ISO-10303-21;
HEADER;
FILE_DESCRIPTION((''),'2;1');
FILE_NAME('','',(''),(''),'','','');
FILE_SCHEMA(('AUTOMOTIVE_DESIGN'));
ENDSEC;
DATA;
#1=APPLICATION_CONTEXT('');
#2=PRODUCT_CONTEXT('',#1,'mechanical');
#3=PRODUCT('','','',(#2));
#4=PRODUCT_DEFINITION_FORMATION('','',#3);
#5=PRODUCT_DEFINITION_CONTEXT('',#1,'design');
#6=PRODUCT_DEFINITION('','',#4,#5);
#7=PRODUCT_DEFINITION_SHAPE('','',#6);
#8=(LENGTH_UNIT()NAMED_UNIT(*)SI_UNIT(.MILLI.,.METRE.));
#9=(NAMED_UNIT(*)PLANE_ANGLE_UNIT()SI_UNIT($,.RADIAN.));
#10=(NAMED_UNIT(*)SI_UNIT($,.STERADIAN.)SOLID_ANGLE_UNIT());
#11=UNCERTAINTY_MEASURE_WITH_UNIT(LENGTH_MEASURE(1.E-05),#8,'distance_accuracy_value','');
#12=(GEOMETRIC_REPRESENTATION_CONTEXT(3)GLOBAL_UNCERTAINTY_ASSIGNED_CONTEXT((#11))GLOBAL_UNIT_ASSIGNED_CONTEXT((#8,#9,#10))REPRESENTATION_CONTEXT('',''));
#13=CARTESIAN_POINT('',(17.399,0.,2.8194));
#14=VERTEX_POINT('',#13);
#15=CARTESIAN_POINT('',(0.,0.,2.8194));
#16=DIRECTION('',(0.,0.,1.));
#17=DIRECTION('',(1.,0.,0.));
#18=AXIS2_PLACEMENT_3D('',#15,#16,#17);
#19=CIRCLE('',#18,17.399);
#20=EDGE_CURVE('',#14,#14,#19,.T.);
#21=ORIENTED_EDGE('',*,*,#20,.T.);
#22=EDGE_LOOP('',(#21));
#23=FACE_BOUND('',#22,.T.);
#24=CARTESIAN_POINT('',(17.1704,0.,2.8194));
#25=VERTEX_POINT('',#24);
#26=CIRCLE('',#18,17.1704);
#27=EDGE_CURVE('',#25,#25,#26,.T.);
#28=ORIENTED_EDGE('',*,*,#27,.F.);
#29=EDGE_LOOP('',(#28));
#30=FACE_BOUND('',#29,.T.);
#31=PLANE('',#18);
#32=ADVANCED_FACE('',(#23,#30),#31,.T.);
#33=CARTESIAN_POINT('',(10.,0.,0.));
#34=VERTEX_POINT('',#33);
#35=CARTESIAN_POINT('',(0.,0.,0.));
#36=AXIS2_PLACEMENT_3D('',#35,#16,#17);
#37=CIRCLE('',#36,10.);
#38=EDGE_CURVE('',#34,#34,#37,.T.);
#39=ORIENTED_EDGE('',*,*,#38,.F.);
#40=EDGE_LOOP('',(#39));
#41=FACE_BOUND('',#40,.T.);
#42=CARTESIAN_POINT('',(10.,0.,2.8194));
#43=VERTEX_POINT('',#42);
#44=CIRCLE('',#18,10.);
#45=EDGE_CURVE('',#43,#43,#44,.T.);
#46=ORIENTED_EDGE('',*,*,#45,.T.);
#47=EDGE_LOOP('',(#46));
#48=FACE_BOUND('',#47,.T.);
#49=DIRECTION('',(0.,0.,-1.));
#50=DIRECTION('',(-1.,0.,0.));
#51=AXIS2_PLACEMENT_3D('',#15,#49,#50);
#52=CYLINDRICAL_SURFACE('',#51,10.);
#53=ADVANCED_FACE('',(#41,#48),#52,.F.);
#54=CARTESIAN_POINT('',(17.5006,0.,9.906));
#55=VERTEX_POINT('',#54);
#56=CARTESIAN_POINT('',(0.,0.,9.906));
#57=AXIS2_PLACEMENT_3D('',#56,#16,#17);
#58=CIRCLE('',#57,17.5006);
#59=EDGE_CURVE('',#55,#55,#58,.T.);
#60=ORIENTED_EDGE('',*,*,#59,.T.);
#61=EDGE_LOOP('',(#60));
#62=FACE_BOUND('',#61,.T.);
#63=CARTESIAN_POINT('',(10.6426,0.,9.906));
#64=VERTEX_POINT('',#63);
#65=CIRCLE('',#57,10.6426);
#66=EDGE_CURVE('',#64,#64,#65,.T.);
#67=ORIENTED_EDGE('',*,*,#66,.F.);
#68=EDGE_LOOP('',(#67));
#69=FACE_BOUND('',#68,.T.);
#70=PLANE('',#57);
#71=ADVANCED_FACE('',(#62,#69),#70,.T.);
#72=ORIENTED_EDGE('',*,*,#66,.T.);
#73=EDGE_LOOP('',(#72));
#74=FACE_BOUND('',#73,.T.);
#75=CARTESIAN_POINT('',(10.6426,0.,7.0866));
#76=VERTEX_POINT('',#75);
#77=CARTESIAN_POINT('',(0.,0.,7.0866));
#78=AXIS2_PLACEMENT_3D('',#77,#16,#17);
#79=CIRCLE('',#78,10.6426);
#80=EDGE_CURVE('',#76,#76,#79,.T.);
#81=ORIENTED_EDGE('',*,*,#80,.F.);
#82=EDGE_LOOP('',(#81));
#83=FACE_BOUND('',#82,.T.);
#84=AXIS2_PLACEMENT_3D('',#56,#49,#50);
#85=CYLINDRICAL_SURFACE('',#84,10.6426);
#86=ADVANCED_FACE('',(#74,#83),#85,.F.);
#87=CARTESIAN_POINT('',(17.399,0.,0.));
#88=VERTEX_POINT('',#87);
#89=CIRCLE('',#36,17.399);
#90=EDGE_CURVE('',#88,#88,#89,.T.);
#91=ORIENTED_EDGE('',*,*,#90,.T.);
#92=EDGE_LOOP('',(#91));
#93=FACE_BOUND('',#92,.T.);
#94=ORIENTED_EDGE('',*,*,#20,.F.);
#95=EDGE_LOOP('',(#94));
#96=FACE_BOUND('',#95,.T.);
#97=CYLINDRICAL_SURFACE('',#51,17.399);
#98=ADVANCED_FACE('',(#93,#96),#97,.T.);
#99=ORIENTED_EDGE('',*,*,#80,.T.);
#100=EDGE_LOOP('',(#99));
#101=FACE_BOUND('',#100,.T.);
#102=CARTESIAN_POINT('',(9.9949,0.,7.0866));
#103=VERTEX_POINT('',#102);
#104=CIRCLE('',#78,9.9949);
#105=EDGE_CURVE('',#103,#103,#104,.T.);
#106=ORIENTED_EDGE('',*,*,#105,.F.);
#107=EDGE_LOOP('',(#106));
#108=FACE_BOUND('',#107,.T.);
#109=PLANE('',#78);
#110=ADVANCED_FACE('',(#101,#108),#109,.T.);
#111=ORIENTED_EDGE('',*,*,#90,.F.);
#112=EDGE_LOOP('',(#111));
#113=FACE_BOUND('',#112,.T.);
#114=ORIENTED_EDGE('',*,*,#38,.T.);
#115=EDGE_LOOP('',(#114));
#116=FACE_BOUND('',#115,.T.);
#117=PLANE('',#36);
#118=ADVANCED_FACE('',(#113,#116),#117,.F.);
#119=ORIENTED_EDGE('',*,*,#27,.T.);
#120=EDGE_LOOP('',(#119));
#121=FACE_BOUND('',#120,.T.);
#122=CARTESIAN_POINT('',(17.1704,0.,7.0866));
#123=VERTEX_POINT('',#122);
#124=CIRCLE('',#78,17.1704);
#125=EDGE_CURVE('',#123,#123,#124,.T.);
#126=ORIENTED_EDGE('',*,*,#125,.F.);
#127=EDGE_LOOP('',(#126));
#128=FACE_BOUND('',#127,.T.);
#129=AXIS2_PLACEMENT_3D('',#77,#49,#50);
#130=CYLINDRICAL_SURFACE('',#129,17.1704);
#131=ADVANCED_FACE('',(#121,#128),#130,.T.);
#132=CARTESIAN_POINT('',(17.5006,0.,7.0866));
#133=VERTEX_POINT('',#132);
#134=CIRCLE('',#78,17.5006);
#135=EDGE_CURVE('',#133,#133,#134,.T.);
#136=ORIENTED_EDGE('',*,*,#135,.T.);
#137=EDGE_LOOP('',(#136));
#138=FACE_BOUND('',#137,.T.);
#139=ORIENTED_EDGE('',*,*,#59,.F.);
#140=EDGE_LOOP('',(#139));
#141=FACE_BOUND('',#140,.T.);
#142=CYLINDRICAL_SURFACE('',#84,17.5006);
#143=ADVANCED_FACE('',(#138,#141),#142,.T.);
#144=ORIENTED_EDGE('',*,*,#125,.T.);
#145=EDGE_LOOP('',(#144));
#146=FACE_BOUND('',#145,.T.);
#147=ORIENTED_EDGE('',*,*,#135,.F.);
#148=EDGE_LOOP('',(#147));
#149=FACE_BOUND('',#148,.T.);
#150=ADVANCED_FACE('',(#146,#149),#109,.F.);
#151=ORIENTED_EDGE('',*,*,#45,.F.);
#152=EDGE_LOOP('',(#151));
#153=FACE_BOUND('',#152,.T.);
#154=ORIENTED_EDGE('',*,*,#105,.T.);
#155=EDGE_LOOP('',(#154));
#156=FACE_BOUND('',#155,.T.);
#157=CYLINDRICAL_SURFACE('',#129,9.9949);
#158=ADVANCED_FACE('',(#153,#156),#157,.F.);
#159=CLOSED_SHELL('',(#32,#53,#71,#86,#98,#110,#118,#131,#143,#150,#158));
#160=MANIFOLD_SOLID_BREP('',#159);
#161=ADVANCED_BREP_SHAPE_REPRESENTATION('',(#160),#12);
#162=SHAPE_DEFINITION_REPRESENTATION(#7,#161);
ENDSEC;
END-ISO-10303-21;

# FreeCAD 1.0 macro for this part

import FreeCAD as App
import Part
import Sketcher

V = App.Vector
Q = App.Units.Quantity

doc = App.newDocument("Part")
body = doc.addObject("PartDesign::Body", "Body")

# Sketch on XY plane
sketch1 = body.newObject("Sketcher::SketchObject", "Sketch")
sketch1.AttachmentSupport = (doc.getObject("XY_Plane"), [""])
sketch1.MapMode = "FlatFace"
sketch1.addGeometry([
    Part.Circle(V(0, 0, 0), V(0, 0, 1), 17.399),
    Part.Circle(V(0, 0, 0), V(0, 0, 1), 10),
], False)
sketch1.addConstraint([
    Sketcher.Constraint("Coincident", 0, 3, -1, 1),
    Sketcher.Constraint("Coincident", 1, 3, -1, 1),
    Sketcher.Constraint("Diameter", 0, Q("1.37 in")),
    Sketcher.Constraint("Diameter", 1, Q("20 mm")),
])
pad1 = body.newObject("PartDesign::Pad", "Pad")
pad1.Profile = sketch1
pad1.Length = Q("0.111 in")

# Sketch on XY plane
sketch2 = body.newObject("Sketcher::SketchObject", "Sketch001")
sketch2.AttachmentSupport = (doc.getObject("XY_Plane"), [""])
sketch2.MapMode = "FlatFace"
sketch2.AttachmentOffset = App.Placement(V(0, 0, 0.111 * 25.4), App.Rotation())
sketch2.addGeometry([
    Part.Circle(V(0, 0, 0), V(0, 0, 1), 17.1704),
    Part.Circle(V(0, 0, 0), V(0, 0, 1), 9.9949),
], False)
sketch2.addConstraint([
    Sketcher.Constraint("Coincident", 0, 3, -1, 1),
    Sketcher.Constraint("Coincident", 1, 3, -1, 1),
    Sketcher.Constraint("Diameter", 0, Q("1.352 in")),
    Sketcher.Constraint("Diameter", 1, Q("0.787 in")),
])
pad2 = body.newObject("PartDesign::Pad", "Pad001")
pad2.Profile = sketch2
pad2.Length = Q("0.168 in")

# Sketch on XY plane
sketch3 = body.newObject("Sketcher::SketchObject", "Sketch002")
sketch3.AttachmentSupport = (doc.getObject("XY_Plane"), [""])
sketch3.MapMode = "FlatFace"
sketch3.AttachmentOffset = App.Placement(V(0, 0, 0.279 * 25.4), App.Rotation())
sketch3.addGeometry([
    Part.Circle(V(0, 0, 0), V(0, 0, 1), 17.5006),
    Part.Circle(V(0, 0, 0), V(0, 0, 1), 10.6426),
], False)
sketch3.addConstraint([
    Sketcher.Constraint("Coincident", 0, 3, -1, 1),
    Sketcher.Constraint("Coincident", 1, 3, -1, 1),
    Sketcher.Constraint("Diameter", 0, Q("1.378 in")),
    Sketcher.Constraint("Diameter", 1, Q("0.838 in")),
])
pad3 = body.newObject("PartDesign::Pad", "Pad002")
pad3.Profile = sketch3
pad3.Length = Q("0.111 in")

doc.recompute()
